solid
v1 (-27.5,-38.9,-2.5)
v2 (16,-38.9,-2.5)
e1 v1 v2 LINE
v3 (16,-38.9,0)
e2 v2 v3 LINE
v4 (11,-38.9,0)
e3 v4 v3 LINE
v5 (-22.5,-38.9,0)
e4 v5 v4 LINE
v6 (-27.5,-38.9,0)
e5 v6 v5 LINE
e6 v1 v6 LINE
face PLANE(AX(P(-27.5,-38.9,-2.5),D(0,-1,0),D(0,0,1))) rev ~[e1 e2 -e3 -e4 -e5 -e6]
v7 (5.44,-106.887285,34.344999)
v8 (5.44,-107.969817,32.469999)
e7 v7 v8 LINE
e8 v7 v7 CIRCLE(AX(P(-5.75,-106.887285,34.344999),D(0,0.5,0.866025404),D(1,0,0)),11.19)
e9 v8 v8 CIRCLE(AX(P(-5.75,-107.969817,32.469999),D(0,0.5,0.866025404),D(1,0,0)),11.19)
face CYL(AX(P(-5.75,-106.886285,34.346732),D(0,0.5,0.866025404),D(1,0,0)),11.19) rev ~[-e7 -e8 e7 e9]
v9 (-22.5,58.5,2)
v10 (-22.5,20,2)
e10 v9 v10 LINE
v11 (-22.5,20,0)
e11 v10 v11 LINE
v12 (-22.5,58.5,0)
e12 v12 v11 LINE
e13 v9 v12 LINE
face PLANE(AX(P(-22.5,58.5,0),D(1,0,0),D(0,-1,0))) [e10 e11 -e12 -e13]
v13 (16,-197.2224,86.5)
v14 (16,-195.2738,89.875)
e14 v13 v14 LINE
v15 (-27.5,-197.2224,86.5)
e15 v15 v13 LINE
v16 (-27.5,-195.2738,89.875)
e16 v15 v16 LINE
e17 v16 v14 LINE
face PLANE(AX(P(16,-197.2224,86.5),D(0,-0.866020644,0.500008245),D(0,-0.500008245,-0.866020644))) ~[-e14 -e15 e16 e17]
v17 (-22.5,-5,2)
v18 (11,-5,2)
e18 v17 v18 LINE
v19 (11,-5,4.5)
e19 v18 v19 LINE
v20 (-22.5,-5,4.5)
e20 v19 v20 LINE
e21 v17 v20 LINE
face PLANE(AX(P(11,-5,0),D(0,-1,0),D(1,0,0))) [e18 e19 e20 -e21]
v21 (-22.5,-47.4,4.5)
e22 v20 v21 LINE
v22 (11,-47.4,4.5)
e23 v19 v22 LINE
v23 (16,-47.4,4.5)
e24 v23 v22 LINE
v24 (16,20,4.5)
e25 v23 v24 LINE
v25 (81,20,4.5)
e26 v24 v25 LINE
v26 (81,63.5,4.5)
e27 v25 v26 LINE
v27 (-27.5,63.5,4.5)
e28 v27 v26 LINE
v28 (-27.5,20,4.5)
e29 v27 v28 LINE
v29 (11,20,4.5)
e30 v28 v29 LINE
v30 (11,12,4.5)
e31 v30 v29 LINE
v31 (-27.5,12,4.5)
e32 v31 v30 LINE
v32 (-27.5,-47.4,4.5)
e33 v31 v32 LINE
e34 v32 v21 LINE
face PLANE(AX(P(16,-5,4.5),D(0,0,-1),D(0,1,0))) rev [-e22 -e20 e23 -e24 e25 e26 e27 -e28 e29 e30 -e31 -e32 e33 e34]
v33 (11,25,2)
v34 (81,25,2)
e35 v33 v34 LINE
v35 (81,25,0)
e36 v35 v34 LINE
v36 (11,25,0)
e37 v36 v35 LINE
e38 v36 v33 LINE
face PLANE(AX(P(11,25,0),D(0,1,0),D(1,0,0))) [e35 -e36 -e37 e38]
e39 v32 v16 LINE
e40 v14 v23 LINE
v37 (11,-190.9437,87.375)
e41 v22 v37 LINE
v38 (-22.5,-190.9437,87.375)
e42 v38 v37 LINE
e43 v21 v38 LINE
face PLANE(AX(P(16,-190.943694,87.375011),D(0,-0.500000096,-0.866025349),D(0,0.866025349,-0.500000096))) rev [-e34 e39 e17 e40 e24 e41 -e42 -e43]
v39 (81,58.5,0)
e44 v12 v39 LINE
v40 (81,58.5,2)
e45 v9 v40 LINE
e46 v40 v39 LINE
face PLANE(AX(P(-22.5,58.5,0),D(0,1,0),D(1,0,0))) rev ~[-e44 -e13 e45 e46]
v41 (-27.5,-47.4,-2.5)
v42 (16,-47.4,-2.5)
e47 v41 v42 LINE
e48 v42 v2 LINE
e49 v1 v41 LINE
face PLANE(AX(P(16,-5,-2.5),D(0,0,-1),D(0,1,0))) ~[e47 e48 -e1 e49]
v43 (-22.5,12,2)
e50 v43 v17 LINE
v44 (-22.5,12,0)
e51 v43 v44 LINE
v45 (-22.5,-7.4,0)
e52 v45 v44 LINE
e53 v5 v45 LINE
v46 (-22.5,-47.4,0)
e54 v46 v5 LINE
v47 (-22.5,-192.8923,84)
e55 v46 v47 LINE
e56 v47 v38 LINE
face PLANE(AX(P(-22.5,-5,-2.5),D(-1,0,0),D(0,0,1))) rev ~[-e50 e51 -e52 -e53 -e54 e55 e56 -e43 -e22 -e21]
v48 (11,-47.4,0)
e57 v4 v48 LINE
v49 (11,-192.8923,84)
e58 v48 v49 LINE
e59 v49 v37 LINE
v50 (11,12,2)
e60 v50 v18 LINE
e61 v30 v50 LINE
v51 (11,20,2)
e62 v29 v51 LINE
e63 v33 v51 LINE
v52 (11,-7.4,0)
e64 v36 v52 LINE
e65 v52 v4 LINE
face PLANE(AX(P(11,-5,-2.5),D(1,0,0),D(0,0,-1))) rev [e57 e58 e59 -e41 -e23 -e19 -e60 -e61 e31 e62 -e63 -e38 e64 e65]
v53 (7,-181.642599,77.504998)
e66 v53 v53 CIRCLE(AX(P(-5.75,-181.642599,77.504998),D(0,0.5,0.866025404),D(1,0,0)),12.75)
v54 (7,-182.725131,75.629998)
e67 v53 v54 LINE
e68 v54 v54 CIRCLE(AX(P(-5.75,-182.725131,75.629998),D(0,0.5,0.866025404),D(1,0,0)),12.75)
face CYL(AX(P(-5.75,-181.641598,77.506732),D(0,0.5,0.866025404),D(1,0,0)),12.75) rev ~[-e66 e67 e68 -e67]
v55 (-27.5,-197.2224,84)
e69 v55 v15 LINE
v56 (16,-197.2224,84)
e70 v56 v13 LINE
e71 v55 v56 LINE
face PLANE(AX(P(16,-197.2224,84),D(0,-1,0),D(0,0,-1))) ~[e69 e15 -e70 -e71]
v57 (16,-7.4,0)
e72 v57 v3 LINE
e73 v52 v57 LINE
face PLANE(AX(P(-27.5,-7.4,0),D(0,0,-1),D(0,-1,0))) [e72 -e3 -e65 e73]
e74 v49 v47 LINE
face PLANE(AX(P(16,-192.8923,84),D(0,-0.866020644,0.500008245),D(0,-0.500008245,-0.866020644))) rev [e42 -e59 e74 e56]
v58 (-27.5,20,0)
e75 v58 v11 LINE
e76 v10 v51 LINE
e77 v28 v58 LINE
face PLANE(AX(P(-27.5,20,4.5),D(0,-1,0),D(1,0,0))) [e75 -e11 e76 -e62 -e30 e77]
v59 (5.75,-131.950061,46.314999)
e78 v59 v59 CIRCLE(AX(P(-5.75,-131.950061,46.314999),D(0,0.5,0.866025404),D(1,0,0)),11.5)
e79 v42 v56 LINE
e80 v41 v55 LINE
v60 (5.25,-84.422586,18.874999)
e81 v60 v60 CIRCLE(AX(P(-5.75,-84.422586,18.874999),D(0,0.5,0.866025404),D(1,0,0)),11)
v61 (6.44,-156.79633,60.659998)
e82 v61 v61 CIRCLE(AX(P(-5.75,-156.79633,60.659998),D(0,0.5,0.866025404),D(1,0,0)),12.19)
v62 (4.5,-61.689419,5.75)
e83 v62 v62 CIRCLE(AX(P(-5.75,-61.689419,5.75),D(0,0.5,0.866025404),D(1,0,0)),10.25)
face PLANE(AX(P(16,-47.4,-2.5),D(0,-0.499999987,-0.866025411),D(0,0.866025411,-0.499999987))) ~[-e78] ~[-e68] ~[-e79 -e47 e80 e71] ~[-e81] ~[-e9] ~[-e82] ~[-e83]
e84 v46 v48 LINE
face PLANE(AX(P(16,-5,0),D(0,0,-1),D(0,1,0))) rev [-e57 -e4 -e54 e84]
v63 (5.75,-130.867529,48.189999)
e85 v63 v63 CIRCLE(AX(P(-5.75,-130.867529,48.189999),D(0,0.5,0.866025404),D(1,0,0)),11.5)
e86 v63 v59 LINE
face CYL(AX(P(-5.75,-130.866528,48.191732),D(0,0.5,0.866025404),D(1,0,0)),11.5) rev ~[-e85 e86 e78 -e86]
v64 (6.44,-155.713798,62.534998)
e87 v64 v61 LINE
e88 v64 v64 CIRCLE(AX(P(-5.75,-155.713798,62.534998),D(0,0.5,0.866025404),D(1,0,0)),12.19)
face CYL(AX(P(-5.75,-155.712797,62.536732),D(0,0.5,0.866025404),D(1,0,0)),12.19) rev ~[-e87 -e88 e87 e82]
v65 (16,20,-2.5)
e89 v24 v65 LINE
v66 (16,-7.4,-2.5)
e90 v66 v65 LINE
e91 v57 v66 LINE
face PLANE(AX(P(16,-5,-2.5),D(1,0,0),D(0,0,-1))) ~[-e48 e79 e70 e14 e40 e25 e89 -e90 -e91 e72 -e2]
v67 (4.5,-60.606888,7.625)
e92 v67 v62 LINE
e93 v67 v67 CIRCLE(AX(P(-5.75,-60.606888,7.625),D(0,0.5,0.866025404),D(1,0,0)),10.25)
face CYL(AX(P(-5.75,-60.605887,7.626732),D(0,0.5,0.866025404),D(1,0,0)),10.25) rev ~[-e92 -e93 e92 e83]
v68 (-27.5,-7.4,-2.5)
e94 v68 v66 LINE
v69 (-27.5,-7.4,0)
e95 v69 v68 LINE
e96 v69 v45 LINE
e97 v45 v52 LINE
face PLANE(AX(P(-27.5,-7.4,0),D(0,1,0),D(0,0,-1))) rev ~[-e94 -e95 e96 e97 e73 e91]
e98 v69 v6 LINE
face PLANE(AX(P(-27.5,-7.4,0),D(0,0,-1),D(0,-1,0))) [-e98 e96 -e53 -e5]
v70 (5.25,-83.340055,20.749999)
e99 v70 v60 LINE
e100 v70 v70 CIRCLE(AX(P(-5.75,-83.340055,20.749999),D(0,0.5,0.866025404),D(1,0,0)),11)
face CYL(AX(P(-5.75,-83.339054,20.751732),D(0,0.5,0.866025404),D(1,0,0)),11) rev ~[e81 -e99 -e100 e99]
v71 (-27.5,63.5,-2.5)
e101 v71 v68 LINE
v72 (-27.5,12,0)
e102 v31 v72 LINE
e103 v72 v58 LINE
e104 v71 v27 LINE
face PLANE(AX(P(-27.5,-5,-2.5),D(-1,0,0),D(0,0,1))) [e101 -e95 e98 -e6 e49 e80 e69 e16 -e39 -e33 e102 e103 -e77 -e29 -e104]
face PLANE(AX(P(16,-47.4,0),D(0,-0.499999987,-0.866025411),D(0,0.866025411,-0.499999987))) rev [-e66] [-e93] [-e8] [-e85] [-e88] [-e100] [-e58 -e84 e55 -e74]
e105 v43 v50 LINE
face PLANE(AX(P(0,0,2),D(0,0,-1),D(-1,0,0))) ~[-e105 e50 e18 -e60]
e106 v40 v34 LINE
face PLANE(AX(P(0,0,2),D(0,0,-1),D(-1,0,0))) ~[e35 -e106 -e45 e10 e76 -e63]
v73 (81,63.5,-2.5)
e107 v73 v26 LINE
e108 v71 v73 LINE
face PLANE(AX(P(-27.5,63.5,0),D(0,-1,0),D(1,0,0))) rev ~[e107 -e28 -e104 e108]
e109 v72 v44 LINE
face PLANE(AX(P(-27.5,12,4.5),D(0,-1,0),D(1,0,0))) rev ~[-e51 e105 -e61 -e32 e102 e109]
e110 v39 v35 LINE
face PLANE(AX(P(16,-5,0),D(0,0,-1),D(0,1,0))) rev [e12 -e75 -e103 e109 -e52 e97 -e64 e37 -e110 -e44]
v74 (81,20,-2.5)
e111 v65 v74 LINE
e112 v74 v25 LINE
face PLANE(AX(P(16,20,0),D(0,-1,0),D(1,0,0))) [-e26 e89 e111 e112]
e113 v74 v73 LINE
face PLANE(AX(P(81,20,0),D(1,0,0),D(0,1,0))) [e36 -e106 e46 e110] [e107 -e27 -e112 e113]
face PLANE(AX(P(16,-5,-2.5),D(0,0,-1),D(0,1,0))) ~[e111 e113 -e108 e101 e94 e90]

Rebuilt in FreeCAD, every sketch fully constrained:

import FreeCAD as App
import Part
import Sketcher
Q = App.Units.Quantity

doc = App.newDocument("Part")
body = doc.addObject("PartDesign::Body", "Body")

# Sketch on XY plane
sketch1 = doc.addObject("Sketcher::SketchObject", "Sketch")
body.addObject(sketch1)
sketch1.AttachmentSupport = (doc.XY_Plane, [""])
sketch1.MapMode = "FlatFace"
sketch1.addGeometry([
    Part.LineSegment(App.Vector(16, 20, 0), App.Vector(81, 20, 0)),  # 0
    Part.LineSegment(App.Vector(81, 20, 0), App.Vector(81, 64, 0)),  # 1
    Part.LineSegment(App.Vector(81, 64, 0), App.Vector(-28, 64, 0)),  # 2
    Part.LineSegment(App.Vector(-28, 64, 0), App.Vector(-28, -5, 0)),  # 3
    Part.LineSegment(App.Vector(-28, -5, 0), App.Vector(16, -5, 0)),  # 4
    Part.LineSegment(App.Vector(16, -5, 0), App.Vector(16, 20, 0)),  # 5
], False)
sketch1.addConstraint([
    Sketcher.Constraint("Coincident", 0, 2, 1, 1),
    Sketcher.Constraint("Coincident", 1, 2, 2, 1),
    Sketcher.Constraint("Coincident", 2, 2, 3, 1),
    Sketcher.Constraint("Coincident", 3, 2, 4, 1),
    Sketcher.Constraint("Coincident", 4, 2, 5, 1),
    Sketcher.Constraint("Coincident", 5, 2, 0, 1),
    Sketcher.Constraint("Horizontal", 0),
    Sketcher.Constraint("Vertical", 1),
    Sketcher.Constraint("Horizontal", 2),
    Sketcher.Constraint("Vertical", 3),
    Sketcher.Constraint("Horizontal", 4),
    Sketcher.Constraint("Vertical", 5),
    Sketcher.Constraint("Equal", 4, 1),
    Sketcher.Constraint("DistanceY", 3, 2, -1, 1, Q("5 mm")),
    Sketcher.Constraint("DistanceX", 0, 1, 0, 2, Q("65 mm")),
    Sketcher.Constraint("DistanceY", 5, 1, 5, 2, Q("25 mm")),
    Sketcher.Constraint("DistanceX", 2, 2, 2, 1, Q("108.5 mm")),
    Sketcher.Constraint("DistanceX", -1, 1, 0, 2, Q("81 mm")),
])
pad1 = doc.addObject("PartDesign::Pad", "Pad")
body.addObject(pad1)
pad1.Profile = sketch1
pad1.Length = 2.5
pad1.Reversed = True

# Sketch on XY plane
sketch2 = doc.addObject("Sketcher::SketchObject", "Sketch001")
body.addObject(sketch2)
sketch2.AttachmentSupport = (doc.XY_Plane, [""])
sketch2.MapMode = "FlatFace"
sketch2.addGeometry([
    Part.LineSegment(App.Vector(16, 20, 0), App.Vector(81, 20, 0)),  # 0
    Part.LineSegment(App.Vector(81, 20, 0), App.Vector(81, 25, 0)),  # 1
    Part.LineSegment(App.Vector(81, 25, 0), App.Vector(11, 25, 0)),  # 2
    Part.LineSegment(App.Vector(11, 25, 0), App.Vector(11, -5, 0)),  # 3
    Part.LineSegment(App.Vector(11, -5, 0), App.Vector(16, -5, 0)),  # 4
    Part.LineSegment(App.Vector(16, -5, 0), App.Vector(16, 20, 0)),  # 5
    Part.LineSegment(App.Vector(-22, 58, 0), App.Vector(81, 58, 0)),  # 6
    Part.LineSegment(App.Vector(81, 58, 0), App.Vector(81, 64, 0)),  # 7
    Part.LineSegment(App.Vector(81, 64, 0), App.Vector(-28, 64, 0)),  # 8
    Part.LineSegment(App.Vector(-28, 64, 0), App.Vector(-28, -5, 0)),  # 9
    Part.LineSegment(App.Vector(-28, -5, 0), App.Vector(-22, -5, 0)),  # 10
    Part.LineSegment(App.Vector(-22, -5, 0), App.Vector(-22, 58, 0)),  # 11
], False)
sketch2.addConstraint([
    Sketcher.Constraint("Coincident", 0, 2, 1, 1),
    Sketcher.Constraint("Coincident", 1, 2, 2, 1),
    Sketcher.Constraint("Coincident", 2, 2, 3, 1),
    Sketcher.Constraint("Coincident", 3, 2, 4, 1),
    Sketcher.Constraint("Coincident", 4, 2, 5, 1),
    Sketcher.Constraint("Coincident", 5, 2, 0, 1),
    Sketcher.Constraint("Coincident", 6, 2, 7, 1),
    Sketcher.Constraint("Coincident", 7, 2, 8, 1),
    Sketcher.Constraint("Coincident", 8, 2, 9, 1),
    Sketcher.Constraint("Coincident", 9, 2, 10, 1),
    Sketcher.Constraint("Coincident", 10, 2, 11, 1),
    Sketcher.Constraint("Coincident", 11, 2, 6, 1),
    Sketcher.Constraint("Horizontal", 0),
    Sketcher.Constraint("Vertical", 1),
    Sketcher.Constraint("Horizontal", 2),
    Sketcher.Constraint("Vertical", 3),
    Sketcher.Constraint("Horizontal", 4),
    Sketcher.Constraint("Vertical", 5),
    Sketcher.Constraint("Horizontal", 6),
    Sketcher.Constraint("Vertical", 7),
    Sketcher.Constraint("Horizontal", 8),
    Sketcher.Constraint("Vertical", 9),
    Sketcher.Constraint("Horizontal", 10),
    Sketcher.Constraint("Vertical", 11),
    Sketcher.Constraint("Horizontal", 4, 2, 9, 2),
    Sketcher.Constraint("Vertical", 1, 2, 6, 2),
    Sketcher.Constraint("Equal", 4, 10),
    Sketcher.Constraint("Equal", 10, 1),
    Sketcher.Constraint("Equal", 1, 7),
    Sketcher.Constraint("DistanceX", 2, 2, 2, 1, Q("70 mm")),
    Sketcher.Constraint("DistanceX", 4, 1, 4, 2, Q("5 mm")),
    Sketcher.Constraint("DistanceY", 3, 2, 3, 1, Q("30 mm")),
    Sketcher.Constraint("DistanceY", 3, 2, -1, 1, Q("5 mm")),
    Sketcher.Constraint("DistanceY", 1, 2, 6, 2, Q("33.5 mm")),
    Sketcher.Constraint("DistanceX", 10, 2, 3, 2, Q("33.5 mm")),
    Sketcher.Constraint("DistanceX", -1, 1, 0, 2, Q("81 mm")),
])
pad2 = doc.addObject("PartDesign::Pad", "Pad001")
body.addObject(pad2)
pad2.Profile = sketch2
pad2.Length = 1
doc.recompute()

datumplane = doc.addObject("PartDesign::Plane", "DatumPlane")
body.addObject(datumplane)
datumplane.AttachmentSupport = (doc.XY_Plane, [""])
datumplane.MapMode = "FlatFace"
datumplane.AttachmentOffset = App.Placement(App.Vector(0, 0, 1), App.Rotation())
mirrored = doc.addObject("PartDesign::Mirrored", "Mirrored")
body.addObject(mirrored)
mirrored.Originals = [pad2, pad1]
mirrored.MirrorPlane = (datumplane, [""])
body.Tip = mirrored

# Sketch on XY plane
sketch3 = doc.addObject("Sketcher::SketchObject", "Sketch002")
body.addObject(sketch3)
sketch3.AttachmentSupport = (doc.XY_Plane, [""])
sketch3.MapMode = "FlatFace"
sketch3.AttachmentOffset = App.Placement(App.Vector(0, 0, 4.5), App.Rotation())
sketch3.addGeometry([
    Part.LineSegment(App.Vector(-28, 20, 0), App.Vector(-28, 12, 0)),
    Part.LineSegment(App.Vector(-28, 12, 0), App.Vector(11, 12, 0)),
    Part.LineSegment(App.Vector(11, 12, 0), App.Vector(11, 20, 0)),
    Part.LineSegment(App.Vector(11, 20, 0), App.Vector(-28, 20, 0)),
], False)
sketch3.addConstraint([
    Sketcher.Constraint("Coincident", 0, 2, 1, 1),
    Sketcher.Constraint("Coincident", 1, 2, 2, 1),
    Sketcher.Constraint("Coincident", 2, 2, 3, 1),
    Sketcher.Constraint("Coincident", 3, 2, 0, 1),
    Sketcher.Constraint("Vertical", 0),
    Sketcher.Constraint("Horizontal", 1),
    Sketcher.Constraint("Vertical", 2),
    Sketcher.Constraint("Horizontal", 3),
    Sketcher.Constraint("DistanceY", 0, 2, 0, 1, Q("8 mm")),
    Sketcher.Constraint("DistanceX", 1, 1, 1, 2, Q("38.5 mm")),
    Sketcher.Constraint("DistanceY", -1, 1, 0, 2, Q("12 mm")),
    Sketcher.Constraint("DistanceX", -1, 1, 1, 2, Q("11 mm")),
])
pocket1 = doc.addObject("PartDesign::Pocket", "Pocket")
body.addObject(pocket1)
pocket1.Profile = sketch3
pocket1.Length = 4.5

# Sketch on YZ plane
sketch4 = doc.addObject("Sketcher::SketchObject", "Sketch003")
body.addObject(sketch4)
sketch4.AttachmentSupport = (doc.YZ_Plane, [""])
sketch4.MapMode = "FlatFace"
sketch4.AttachmentOffset = App.Placement(App.Vector(0, 0, -27.5), App.Rotation())
sketch4.addGeometry([
    Part.LineSegment(App.Vector(-5, 0, 0), App.Vector(-5, -2.5, 0)),  # 0
    Part.LineSegment(App.Vector(-5, -2.5, 0), App.Vector(-47.4, -2.5, 0)),  # 1
    Part.LineSegment(App.Vector(-47.4, -2.5, 0), App.Vector(-197.2, 84, 0)),  # 2
    Part.LineSegment(App.Vector(-197.2, 84, 0), App.Vector(-197.2, 86.5, 0)),  # 3
    Part.LineSegment(App.Vector(-197.2, 86.5, 0), App.Vector(-47.4, 0, 0)),  # 4
    Part.LineSegment(App.Vector(-47.4, 0, 0), App.Vector(-5, 0, 0)),  # 5
], False)
sketch4.addConstraint([
    Sketcher.Constraint("Coincident", 0, 2, 1, 1),
    Sketcher.Constraint("Coincident", 1, 2, 2, 1),
    Sketcher.Constraint("Coincident", 2, 2, 3, 1),
    Sketcher.Constraint("Coincident", 3, 2, 4, 1),
    Sketcher.Constraint("Coincident", 4, 2, 5, 1),
    Sketcher.Constraint("Coincident", 5, 2, 0, 1),
    Sketcher.Constraint("Vertical", 0),
    Sketcher.Constraint("Horizontal", 1),
    Sketcher.Constraint("Vertical", 3),
    Sketcher.Constraint("Horizontal", 5),
    Sketcher.Constraint("PointOnObject", 4, 2, -1),
    Sketcher.Constraint("Parallel", 2, 4),
    Sketcher.Constraint("Vertical", 1, 2, 4, 2),
    Sketcher.Constraint("Distance", 2, Q("173 mm")),
    Sketcher.Constraint("DistanceX", 1, 2, 1, 1, Q("42.4 mm")),
    Sketcher.Constraint("DistanceX", 0, 2, -1, 1, Q("5 mm")),
    Sketcher.Constraint("Angle", 2, Q("150 deg")),
    Sketcher.Constraint("DistanceY", 0, 2, 0, 1, Q("2.5 mm")),
])
pad3 = doc.addObject("PartDesign::Pad", "Pad002")
body.addObject(pad3)
pad3.Profile = sketch4
pad3.Length = 21.75

# Sketch on YZ plane
sketch5 = doc.addObject("Sketcher::SketchObject", "Sketch004")
body.addObject(sketch5)
sketch5.AttachmentSupport = (doc.YZ_Plane, [""])
sketch5.MapMode = "FlatFace"
sketch5.AttachmentOffset = App.Placement(App.Vector(0, 0, -27.5), App.Rotation())
sketch5.addGeometry([
    Part.LineSegment(App.Vector(-5, 4.5, 0), App.Vector(-5, 0, 0)),  # 0
    Part.LineSegment(App.Vector(-5, 0, 0), App.Vector(-47.4, 0, 0)),  # 1
    Part.LineSegment(App.Vector(-47.4, 0, 0), App.Vector(-192.9, 84, 0)),  # 2
    Part.LineSegment(App.Vector(-192.9, 84, 0), App.Vector(-190.9, 87.4, 0)),  # 3
    Part.LineSegment(App.Vector(-190.9, 87.4, 0), App.Vector(-47.4, 4.5, 0)),  # 4
    Part.LineSegment(App.Vector(-47.4, 4.5, 0), App.Vector(-5, 4.5, 0)),  # 5
], False)
sketch5.addConstraint([
    Sketcher.Constraint("Coincident", 0, 2, 1, 1),
    Sketcher.Constraint("Coincident", 1, 2, 2, 1),
    Sketcher.Constraint("Coincident", 2, 2, 3, 1),
    Sketcher.Constraint("Coincident", 3, 2, 4, 1),
    Sketcher.Constraint("Coincident", 4, 2, 5, 1),
    Sketcher.Constraint("Coincident", 5, 2, 0, 1),
    Sketcher.Constraint("Vertical", 0),
    Sketcher.Constraint("Horizontal", 1),
    Sketcher.Constraint("Horizontal", 5),
    Sketcher.Constraint("PointOnObject", 0, 2, -1),
    Sketcher.Constraint("Perpendicular", 2, 3),
    Sketcher.Constraint("Perpendicular", 3, 4),
    Sketcher.Constraint("Vertical", 1, 2, 4, 2),
    Sketcher.Constraint("DistanceX", 1, 2, 1, 1, Q("42.4 mm")),
    Sketcher.Constraint("DistanceX", 0, 2, -1, 1, Q("5 mm")),
    Sketcher.Constraint("Angle", 2, Q("150 deg")),
    Sketcher.Constraint("Distance", 2, Q("168 mm")),
    Sketcher.Constraint("DistanceY", 0, 2, 0, 1, Q("4.5 mm")),
])
pad4 = doc.addObject("PartDesign::Pad", "Pad003")
body.addObject(pad4)
pad4.Profile = sketch5
pad4.Length = 5

# Sketch on YZ plane
sketch6 = doc.addObject("Sketcher::SketchObject", "Sketch005")
body.addObject(sketch6)
sketch6.AttachmentSupport = (doc.YZ_Plane, [""])
sketch6.MapMode = "FlatFace"
sketch6.AttachmentOffset = App.Placement(App.Vector(0, 0, -27.5), App.Rotation())
sketch6.addGeometry([
    Part.LineSegment(App.Vector(-192.9, 84, 0), App.Vector(-197.2, 86.5, 0)),
    Part.LineSegment(App.Vector(-197.2, 86.5, 0), App.Vector(-195.3, 89.9, 0)),
    Part.LineSegment(App.Vector(-195.3, 89.9, 0), App.Vector(-190.9, 87.4, 0)),
    Part.LineSegment(App.Vector(-190.9, 87.4, 0), App.Vector(-192.9, 84, 0)),
], False)
sketch6.addConstraint([
    Sketcher.Constraint("Coincident", 0, 2, 1, 1),
    Sketcher.Constraint("Coincident", 1, 2, 2, 1),
    Sketcher.Constraint("Coincident", 2, 2, 3, 1),
    Sketcher.Constraint("Coincident", 3, 2, 0, 1),
    Sketcher.Constraint("Perpendicular", 0, 1),
    Sketcher.Constraint("Perpendicular", 1, 2),
    Sketcher.Constraint("Perpendicular", 2, 3),
    Sketcher.Constraint("Angle", 3, Q("-120.0005 deg")),
    Sketcher.Constraint("Distance", 0, Q("5 mm")),
    Sketcher.Constraint("DistanceY", -1, 1, 3, 2, Q("84 mm")),
    Sketcher.Constraint("DistanceY", -1, 1, 1, 2, Q("89.875 mm")),
    Sketcher.Constraint("DistanceX", 0, 2, -1, 1, Q("197.2224 mm")),
])
pad5 = doc.addObject("PartDesign::Pad", "Pad004")
body.addObject(pad5)
pad5.Profile = sketch6
pad5.Length = 21.75
doc.recompute()

datumplane2 = doc.addObject("PartDesign::Plane", "DatumPlane001")
body.addObject(datumplane2)
datumplane2.AttachmentSupport = (doc.YZ_Plane, [""])
datumplane2.MapMode = "FlatFace"
datumplane2.AttachmentOffset = App.Placement(App.Vector(0, 0, -5.75), App.Rotation())
mirrored2 = doc.addObject("PartDesign::Mirrored", "Mirrored001")
body.addObject(mirrored2)
mirrored2.Originals = [pad3, pad4, pad5]
mirrored2.MirrorPlane = (datumplane2, [""])
body.Tip = mirrored2

# Sketch on an angled plane
sketch7 = doc.addObject("Sketcher::SketchObject", "Sketch006")
body.addObject(sketch7)
sketch7.Placement = App.Placement(App.Vector(-22.5, -47.4, 0), App.Rotation(App.Vector(1, 0, 0), App.Vector(0, 0.866025404, -0.5), App.Vector(0, 0.5, 0.866025404), "ZXY"))
sketch7.addGeometry([
    Part.Circle(App.Vector(17, -15, 0), App.Vector(0, 0, 1), 10),  # 0
    Part.Circle(App.Vector(17, -155, 0), App.Vector(0, 0, 1), 13),  # 1
    Part.Circle(App.Vector(17, -125, 0), App.Vector(0, 0, 1), 12),  # 2
    Part.Circle(App.Vector(17, -96, 0), App.Vector(0, 0, 1), 12),  # 3
    Part.Circle(App.Vector(17, -69, 0), App.Vector(0, 0, 1), 11),  # 4
    Part.Circle(App.Vector(17, -42, 0), App.Vector(0, 0, 1), 11),  # 5
], False)
sketch7.addConstraint([
    Sketcher.Constraint("Vertical", 0, 3, 1, 3),
    Sketcher.Constraint("Vertical", 1, 3, 2, 3),
    Sketcher.Constraint("Vertical", 2, 3, 3, 3),
    Sketcher.Constraint("Vertical", 3, 3, 4, 3),
    Sketcher.Constraint("Vertical", 4, 3, 5, 3),
    Sketcher.Constraint("Diameter", 3, Q("23 mm")),
    Sketcher.Constraint("Diameter", 5, Q("22 mm")),
    Sketcher.Constraint("Diameter", 0, Q("20.5 mm")),
    Sketcher.Constraint("Diameter", 1, Q("25.5 mm")),
    Sketcher.Constraint("Diameter", 2, Q("24.38 mm")),
    Sketcher.Constraint("Diameter", 4, Q("22.38 mm")),
    Sketcher.Constraint("DistanceY", 5, 3, -1, 1, Q("41.5 mm")),
    Sketcher.Constraint("DistanceX", -1, 1, 0, 3, Q("16.75 mm")),
    Sketcher.Constraint("DistanceY", 0, 3, -1, 1, Q("15.25 mm")),
    Sketcher.Constraint("DistanceY", 1, 3, -1, 1, Q("155.01 mm")),
    Sketcher.Constraint("DistanceY", 2, 3, -1, 1, Q("125.07 mm")),
    Sketcher.Constraint("DistanceY", 3, 3, -1, 1, Q("96.38 mm")),
    Sketcher.Constraint("DistanceY", 4, 3, -1, 1, Q("68.69 mm")),
])
pocket2 = doc.addObject("PartDesign::Pocket", "Pocket001")
body.addObject(pocket2)
pocket2.Profile = sketch7
pocket2.Length = 21.75

# Sketch on YZ plane
sketch8 = doc.addObject("Sketcher::SketchObject", "Sketch007")
body.addObject(sketch8)
sketch8.AttachmentSupport = (doc.YZ_Plane, [""])
sketch8.MapMode = "FlatFace"
sketch8.AttachmentOffset = App.Placement(App.Vector(0, 0, -27.5), App.Rotation())
sketch8.addGeometry([
    Part.LineSegment(App.Vector(-38.9, 0, 0), App.Vector(-7.4, 0, 0)),
    Part.LineSegment(App.Vector(-7.4, 0, 0), App.Vector(-7.4, -2.5, 0)),
    Part.LineSegment(App.Vector(-7.4, -2.5, 0), App.Vector(-38.9, -2.5, 0)),
    Part.LineSegment(App.Vector(-38.9, -2.5, 0), App.Vector(-38.9, 0, 0)),
], False)
sketch8.addConstraint([
    Sketcher.Constraint("Coincident", 0, 2, 1, 1),
    Sketcher.Constraint("Coincident", 1, 2, 2, 1),
    Sketcher.Constraint("Coincident", 2, 2, 3, 1),
    Sketcher.Constraint("Coincident", 3, 2, 0, 1),
    Sketcher.Constraint("Horizontal", 0),
    Sketcher.Constraint("Vertical", 1),
    Sketcher.Constraint("Horizontal", 2),
    Sketcher.Constraint("Vertical", 3),
    Sketcher.Constraint("PointOnObject", 0, 2, -1),
    Sketcher.Constraint("DistanceX", 0, 1, 0, 2, Q("31.5 mm")),
    Sketcher.Constraint("DistanceY", 1, 2, 1, 1, Q("2.5 mm")),
    Sketcher.Constraint("DistanceX", 0, 2, -1, 1, Q("7.4 mm")),
])
pocket3 = doc.addObject("PartDesign::Pocket", "Pocket002")
body.addObject(pocket3)
pocket3.Profile = sketch8
pocket3.Type = "ThroughAll"
pocket3.Reversed = True

doc.recompute()
